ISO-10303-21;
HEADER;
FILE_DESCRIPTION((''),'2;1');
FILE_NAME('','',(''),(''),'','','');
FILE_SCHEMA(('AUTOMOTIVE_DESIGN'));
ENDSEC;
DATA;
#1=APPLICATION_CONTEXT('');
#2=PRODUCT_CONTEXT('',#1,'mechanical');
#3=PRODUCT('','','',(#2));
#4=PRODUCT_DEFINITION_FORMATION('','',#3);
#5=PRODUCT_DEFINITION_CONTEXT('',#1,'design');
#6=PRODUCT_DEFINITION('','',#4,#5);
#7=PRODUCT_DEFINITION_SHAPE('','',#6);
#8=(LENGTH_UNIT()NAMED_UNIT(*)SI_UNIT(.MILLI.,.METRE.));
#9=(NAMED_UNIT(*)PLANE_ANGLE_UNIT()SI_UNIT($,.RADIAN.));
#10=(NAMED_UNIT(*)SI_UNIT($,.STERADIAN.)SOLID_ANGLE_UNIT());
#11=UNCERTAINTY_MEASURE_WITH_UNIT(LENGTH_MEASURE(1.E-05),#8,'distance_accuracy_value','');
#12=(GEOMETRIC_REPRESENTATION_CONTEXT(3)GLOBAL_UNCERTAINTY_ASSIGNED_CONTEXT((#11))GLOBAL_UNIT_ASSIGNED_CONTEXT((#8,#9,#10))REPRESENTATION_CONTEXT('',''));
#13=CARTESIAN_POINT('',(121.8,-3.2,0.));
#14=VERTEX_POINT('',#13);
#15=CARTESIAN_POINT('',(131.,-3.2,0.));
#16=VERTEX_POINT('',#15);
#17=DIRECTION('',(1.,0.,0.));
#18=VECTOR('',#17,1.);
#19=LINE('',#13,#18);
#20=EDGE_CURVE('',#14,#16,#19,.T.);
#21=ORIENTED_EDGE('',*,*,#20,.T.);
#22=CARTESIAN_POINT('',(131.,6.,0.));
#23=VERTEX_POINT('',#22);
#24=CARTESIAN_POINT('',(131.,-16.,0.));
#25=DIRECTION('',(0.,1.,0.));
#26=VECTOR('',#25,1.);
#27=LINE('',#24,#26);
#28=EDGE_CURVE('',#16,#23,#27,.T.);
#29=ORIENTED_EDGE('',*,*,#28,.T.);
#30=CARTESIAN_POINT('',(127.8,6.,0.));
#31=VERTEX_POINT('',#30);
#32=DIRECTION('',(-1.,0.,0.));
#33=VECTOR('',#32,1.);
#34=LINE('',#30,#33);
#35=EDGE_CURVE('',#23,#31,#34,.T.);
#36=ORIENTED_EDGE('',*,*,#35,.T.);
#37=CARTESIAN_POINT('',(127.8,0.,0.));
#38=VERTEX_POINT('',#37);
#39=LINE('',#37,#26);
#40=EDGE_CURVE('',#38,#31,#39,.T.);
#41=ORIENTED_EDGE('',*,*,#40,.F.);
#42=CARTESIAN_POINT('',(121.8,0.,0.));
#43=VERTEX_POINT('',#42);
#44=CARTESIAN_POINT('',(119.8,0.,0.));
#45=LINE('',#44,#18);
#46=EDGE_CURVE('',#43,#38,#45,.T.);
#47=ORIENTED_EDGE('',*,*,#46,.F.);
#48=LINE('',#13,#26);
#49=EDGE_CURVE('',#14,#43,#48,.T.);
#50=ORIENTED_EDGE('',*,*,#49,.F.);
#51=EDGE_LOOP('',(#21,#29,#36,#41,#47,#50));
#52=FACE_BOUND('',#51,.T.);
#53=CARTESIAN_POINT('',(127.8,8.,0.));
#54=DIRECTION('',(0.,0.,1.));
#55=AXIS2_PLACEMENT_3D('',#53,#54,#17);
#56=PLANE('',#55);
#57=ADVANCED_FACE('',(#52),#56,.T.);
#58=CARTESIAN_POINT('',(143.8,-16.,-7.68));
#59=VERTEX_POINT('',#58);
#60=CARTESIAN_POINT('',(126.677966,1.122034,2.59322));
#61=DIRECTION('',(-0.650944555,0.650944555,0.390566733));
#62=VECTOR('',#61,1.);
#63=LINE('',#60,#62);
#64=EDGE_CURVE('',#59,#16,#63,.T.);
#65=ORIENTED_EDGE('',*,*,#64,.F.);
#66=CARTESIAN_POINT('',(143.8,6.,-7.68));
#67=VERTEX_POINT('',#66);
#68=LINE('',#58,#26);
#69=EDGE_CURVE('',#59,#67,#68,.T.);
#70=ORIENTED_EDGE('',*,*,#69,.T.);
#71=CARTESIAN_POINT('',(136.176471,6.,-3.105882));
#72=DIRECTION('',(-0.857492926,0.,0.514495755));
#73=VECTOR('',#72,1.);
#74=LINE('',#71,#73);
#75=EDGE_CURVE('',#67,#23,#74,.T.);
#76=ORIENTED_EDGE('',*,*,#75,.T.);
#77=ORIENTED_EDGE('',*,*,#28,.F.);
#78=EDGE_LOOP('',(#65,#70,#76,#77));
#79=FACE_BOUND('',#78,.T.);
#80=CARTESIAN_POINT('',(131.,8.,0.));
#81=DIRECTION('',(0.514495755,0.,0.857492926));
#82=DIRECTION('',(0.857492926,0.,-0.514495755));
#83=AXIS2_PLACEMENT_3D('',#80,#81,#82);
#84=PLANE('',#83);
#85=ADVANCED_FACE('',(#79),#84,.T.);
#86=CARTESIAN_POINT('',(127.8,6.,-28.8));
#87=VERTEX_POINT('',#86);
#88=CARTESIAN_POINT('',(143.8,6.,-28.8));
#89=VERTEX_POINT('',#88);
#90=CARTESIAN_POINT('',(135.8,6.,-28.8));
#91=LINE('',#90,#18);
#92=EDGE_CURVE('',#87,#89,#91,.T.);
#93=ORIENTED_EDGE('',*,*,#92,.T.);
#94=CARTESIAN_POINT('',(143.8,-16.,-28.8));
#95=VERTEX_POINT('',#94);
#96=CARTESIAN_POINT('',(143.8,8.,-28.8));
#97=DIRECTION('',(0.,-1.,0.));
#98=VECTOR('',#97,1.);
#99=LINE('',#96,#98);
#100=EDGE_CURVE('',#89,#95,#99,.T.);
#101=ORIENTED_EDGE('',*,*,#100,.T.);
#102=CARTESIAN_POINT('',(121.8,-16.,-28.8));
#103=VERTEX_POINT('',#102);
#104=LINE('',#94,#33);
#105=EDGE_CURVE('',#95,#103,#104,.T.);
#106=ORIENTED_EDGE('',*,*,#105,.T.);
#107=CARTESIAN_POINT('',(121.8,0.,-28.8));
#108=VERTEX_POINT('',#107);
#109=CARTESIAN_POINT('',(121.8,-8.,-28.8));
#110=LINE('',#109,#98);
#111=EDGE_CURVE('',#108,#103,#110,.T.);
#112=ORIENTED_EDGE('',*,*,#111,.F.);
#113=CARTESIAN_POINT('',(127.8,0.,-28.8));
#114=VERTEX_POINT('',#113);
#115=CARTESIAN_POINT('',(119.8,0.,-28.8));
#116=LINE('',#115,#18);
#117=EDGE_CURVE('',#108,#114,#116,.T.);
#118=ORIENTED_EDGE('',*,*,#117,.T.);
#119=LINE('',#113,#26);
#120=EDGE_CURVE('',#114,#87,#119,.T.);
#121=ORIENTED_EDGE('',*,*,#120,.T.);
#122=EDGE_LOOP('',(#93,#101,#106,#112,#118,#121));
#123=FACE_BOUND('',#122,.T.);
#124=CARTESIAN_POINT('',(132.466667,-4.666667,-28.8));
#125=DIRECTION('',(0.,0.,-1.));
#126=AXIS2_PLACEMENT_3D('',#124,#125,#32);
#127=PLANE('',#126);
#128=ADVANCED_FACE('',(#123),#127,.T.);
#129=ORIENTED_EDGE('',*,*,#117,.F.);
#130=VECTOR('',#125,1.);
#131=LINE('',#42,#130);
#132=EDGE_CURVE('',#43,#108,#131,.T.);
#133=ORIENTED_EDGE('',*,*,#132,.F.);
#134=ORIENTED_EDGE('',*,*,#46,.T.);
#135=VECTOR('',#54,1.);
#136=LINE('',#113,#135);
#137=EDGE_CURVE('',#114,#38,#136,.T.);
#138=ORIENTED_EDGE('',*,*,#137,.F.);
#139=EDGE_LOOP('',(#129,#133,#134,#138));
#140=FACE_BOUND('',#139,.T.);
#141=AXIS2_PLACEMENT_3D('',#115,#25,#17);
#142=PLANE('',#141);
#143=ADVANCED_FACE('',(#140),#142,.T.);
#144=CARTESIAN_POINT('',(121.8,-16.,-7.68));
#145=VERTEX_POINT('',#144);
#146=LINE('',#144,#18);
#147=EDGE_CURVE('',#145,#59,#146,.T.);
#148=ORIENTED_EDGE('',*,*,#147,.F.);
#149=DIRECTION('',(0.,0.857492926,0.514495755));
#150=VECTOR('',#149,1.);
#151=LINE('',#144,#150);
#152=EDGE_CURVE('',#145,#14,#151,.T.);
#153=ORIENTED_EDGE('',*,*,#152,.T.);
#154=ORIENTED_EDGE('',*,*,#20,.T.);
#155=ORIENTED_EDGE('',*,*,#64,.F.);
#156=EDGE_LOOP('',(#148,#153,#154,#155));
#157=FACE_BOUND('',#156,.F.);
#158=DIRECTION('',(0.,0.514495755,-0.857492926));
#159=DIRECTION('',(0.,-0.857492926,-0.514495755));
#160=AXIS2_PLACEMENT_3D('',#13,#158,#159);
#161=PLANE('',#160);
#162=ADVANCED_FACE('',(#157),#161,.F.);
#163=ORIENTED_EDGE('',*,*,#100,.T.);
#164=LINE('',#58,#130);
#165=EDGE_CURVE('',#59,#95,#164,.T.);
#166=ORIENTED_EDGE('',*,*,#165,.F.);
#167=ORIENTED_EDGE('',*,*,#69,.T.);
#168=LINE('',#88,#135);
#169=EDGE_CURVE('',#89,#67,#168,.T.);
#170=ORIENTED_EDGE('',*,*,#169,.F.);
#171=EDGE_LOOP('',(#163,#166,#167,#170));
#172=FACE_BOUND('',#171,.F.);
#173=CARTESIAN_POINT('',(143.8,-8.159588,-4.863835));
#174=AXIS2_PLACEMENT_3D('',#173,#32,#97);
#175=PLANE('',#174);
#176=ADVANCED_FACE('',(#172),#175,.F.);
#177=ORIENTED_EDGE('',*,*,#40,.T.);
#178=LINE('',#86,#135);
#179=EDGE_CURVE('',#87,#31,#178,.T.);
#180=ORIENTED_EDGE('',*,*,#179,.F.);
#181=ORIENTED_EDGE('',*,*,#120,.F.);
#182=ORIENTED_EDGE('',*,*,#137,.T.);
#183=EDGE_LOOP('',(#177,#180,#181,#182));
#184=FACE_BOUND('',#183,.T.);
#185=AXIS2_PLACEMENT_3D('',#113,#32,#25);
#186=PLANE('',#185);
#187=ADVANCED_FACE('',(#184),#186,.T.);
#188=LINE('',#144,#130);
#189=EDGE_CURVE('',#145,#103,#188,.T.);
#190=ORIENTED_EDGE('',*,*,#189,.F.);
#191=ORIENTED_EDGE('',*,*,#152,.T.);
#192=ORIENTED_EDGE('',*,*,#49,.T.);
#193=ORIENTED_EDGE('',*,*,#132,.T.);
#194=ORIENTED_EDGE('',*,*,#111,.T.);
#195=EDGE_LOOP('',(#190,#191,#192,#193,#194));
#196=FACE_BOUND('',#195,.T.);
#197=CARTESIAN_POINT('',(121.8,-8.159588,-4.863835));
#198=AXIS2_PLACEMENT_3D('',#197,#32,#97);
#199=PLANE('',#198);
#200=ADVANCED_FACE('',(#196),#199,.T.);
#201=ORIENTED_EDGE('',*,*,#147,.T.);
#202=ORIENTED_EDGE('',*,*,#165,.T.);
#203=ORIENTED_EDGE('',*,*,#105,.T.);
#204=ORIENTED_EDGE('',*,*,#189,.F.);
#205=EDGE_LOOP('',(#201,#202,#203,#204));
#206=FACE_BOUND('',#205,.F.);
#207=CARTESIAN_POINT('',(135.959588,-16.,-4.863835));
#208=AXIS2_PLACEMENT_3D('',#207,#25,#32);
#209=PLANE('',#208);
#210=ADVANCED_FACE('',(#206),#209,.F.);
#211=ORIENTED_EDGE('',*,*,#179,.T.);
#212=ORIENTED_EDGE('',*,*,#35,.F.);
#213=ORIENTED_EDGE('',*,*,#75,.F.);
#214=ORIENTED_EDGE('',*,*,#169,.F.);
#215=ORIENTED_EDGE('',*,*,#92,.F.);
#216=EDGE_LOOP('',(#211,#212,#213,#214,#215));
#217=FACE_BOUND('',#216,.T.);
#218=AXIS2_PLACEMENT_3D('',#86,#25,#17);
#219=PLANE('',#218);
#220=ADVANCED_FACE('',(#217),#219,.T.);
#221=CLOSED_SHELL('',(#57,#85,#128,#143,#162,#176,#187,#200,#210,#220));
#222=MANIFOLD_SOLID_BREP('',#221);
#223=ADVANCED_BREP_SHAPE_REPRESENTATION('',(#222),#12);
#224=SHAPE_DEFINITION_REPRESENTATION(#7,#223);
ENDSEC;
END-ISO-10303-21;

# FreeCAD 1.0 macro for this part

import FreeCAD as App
import Part
import Sketcher
from FreeCAD import Vector
Q = App.Units.Quantity


def add_polygon(sketch, points):
    """Adds a closed chain of lines whose ends are joined by coincident constraints."""
    first, n = sketch.GeometryCount, len(points)
    for a, b in zip(points, points[1:] + points[:1]):
        sketch.addGeometry(Part.LineSegment(App.Vector(*a, 0), App.Vector(*b, 0)), False)
    for i in range(n):
        sketch.addConstraint(Sketcher.Constraint("Coincident", first + i, 2, first + (i + 1) % n, 1))

doc = App.newDocument("Part")
body = doc.addObject("PartDesign::Body", "Body")

# Sketch on XY plane
sketch1 = body.newObject("Sketcher::SketchObject", "Sketch")
sketch1.AttachmentSupport = (doc.getObject("XY_Plane"), [""])
sketch1.MapMode = "FlatFace"
sketch1.AttachmentOffset = App.Placement(Vector(0, 0, -28.8), App.Rotation())
add_polygon(sketch1, [(127.8, 8), (127.8, 0), (119.8, 0), (119.8, -16), (143.8, -16), (143.8, 8)])  # lines 0-5
sketch1.addConstraint([
    Sketcher.Constraint("Vertical", 0),
    Sketcher.Constraint("Horizontal", 1),
    Sketcher.Constraint("Vertical", 2),
    Sketcher.Constraint("Horizontal", 3),
    Sketcher.Constraint("Vertical", 4),
    Sketcher.Constraint("Horizontal", 5),
    Sketcher.Constraint("PointOnObject", 0, 2, -1),
    Sketcher.Constraint("Equal", 1, 0),
    Sketcher.Constraint("Equal", 5, 2),
    Sketcher.Constraint("DistanceX", 1, 2, 1, 1, Q("8 mm")),
    Sketcher.Constraint("DistanceX", 3, 1, 3, 2, Q("24 mm")),
    Sketcher.Constraint("DistanceX", -1, 1, 0, 2, Q("127.8 mm")),
])
pad1 = body.newObject("PartDesign::Pad", "Pad")
pad1.Profile = sketch1
pad1.Length = 28.8

# Sketch on YZ plane
sketch2 = body.newObject("Sketcher::SketchObject", "Sketch001")
sketch2.AttachmentSupport = (doc.getObject("YZ_Plane"), [""])
sketch2.MapMode = "FlatFace"
sketch2.AttachmentOffset = App.Placement(Vector(0, 0, 119.8), App.Rotation())
add_polygon(sketch2, [(0, 0), (-16, -9.6), (-16, 0)])  # lines 0-2
sketch2.addConstraint([
    Sketcher.Constraint("Vertical", 1),
    Sketcher.Constraint("Horizontal", 2),
    Sketcher.Constraint("Coincident", 2, 2, -1, 1),
    Sketcher.Constraint("DistanceX", 2, 1, 2, 2, Q("16 mm")),
    Sketcher.Constraint("DistanceY", 1, 1, 1, 2, Q("9.6 mm")),
])
pocket1 = body.newObject("PartDesign::Pocket", "Pocket")
pocket1.Profile = sketch2
pocket1.Length = 24
pocket1.Reversed = True

# Sketch on XZ plane
sketch3 = body.newObject("Sketcher::SketchObject", "Sketch002")
sketch3.AttachmentSupport = (doc.getObject("XZ_Plane"), [""])
sketch3.MapMode = "FlatFace"
sketch3.AttachmentOffset = App.Placement(Vector(0, 0, -8), App.Rotation())
add_polygon(sketch3, [(143.8, -9.6), (127.8, 0), (143.8, 0)])  # lines 0-2
sketch3.addConstraint([
    Sketcher.Constraint("Horizontal", 1),
    Sketcher.Constraint("Vertical", 2),
    Sketcher.Constraint("PointOnObject", 0, 2, -1),
    Sketcher.Constraint("DistanceX", 1, 1, 1, 2, Q("16 mm")),
    Sketcher.Constraint("DistanceY", 2, 2, 2, 1, Q("9.6 mm")),
    Sketcher.Constraint("DistanceX", -1, 1, 0, 2, Q("127.8 mm")),
])
pocket2 = body.newObject("PartDesign::Pocket", "Pocket001")
pocket2.Profile = sketch3
pocket2.Length = 24
pocket2.Reversed = True

# Sketch on XY plane
sketch4 = body.newObject("Sketcher::SketchObject", "Sketch003")
sketch4.AttachmentSupport = (doc.getObject("XY_Plane"), [""])
sketch4.MapMode = "FlatFace"
sketch4.AttachmentOffset = App.Placement(Vector(0, 0, -28.8), App.Rotation())
add_polygon(sketch4, [(119.8, -16), (119.8, 0), (121.8, 0), (121.8, -16)])  # lines 0-3
sketch4.addConstraint([
    Sketcher.Constraint("Vertical", 0),
    Sketcher.Constraint("Horizontal", 1),
    Sketcher.Constraint("Vertical", 2),
    Sketcher.Constraint("Horizontal", 3),
    Sketcher.Constraint("PointOnObject", 0, 2, -1),
    Sketcher.Constraint("DistanceX", 1, 1, 1, 2, Q("2 mm")),
    Sketcher.Constraint("DistanceY", 0, 1, 0, 2, Q("16 mm")),
    Sketcher.Constraint("DistanceX", -1, 1, 0, 2, Q("119.8 mm")),
])
pocket3 = body.newObject("PartDesign::Pocket", "Pocket002")
pocket3.Profile = sketch4
pocket3.Length = 30
pocket3.Reversed = True

# Sketch on XZ plane
sketch5 = body.newObject("Sketcher::SketchObject", "Sketch004")
sketch5.AttachmentSupport = (doc.getObject("XZ_Plane"), [""])
sketch5.MapMode = "FlatFace"
sketch5.AttachmentOffset = App.Placement(Vector(0, 0, -8), App.Rotation())
add_polygon(sketch5, [(127.8, 0), (131, 0), (143.8, -7.68), (143.8, -10.88), (131, -3.2), (127.8, -3.2)])  # lines 0-5
sketch5.addConstraint([
    Sketcher.Constraint("Horizontal", 0),
    Sketcher.Constraint("Vertical", 2),
    Sketcher.Constraint("Horizontal", 4),
    Sketcher.Constraint("Vertical", 5),
    Sketcher.Constraint("PointOnObject", 0, 2, -1),
    Sketcher.Constraint("Parallel", 1, 3),
    Sketcher.Constraint("Vertical", 0, 2, 3, 2),
    Sketcher.Constraint("Equal", 4, 2),
    Sketcher.Constraint("DistanceX", 0, 1, 0, 2, Q("3.2 mm")),
    Sketcher.Constraint("DistanceX", -1, 1, 0, 2, Q("131 mm")),
    Sketcher.Constraint("DistanceX", 4, 2, 1, 2, Q("16 mm")),
    Sketcher.Constraint("DistanceY", 1, 2, -1, 1, Q("7.68 mm")),
])
pad2 = body.newObject("PartDesign::Pad", "Pad001")
pad2.Profile = sketch5
pad2.Length = 24

# Sketch on YZ plane
sketch6 = body.newObject("Sketcher::SketchObject", "Sketch005")
sketch6.AttachmentSupport = (doc.getObject("YZ_Plane"), [""])
sketch6.MapMode = "FlatFace"
sketch6.AttachmentOffset = App.Placement(Vector(0, 0, 121.8), App.Rotation())
add_polygon(sketch6, [(0, 0), (0, -3.2), (-3.2, -3.2), (-16, -10.88), (-16, -7.68), (-3.2, 0)])  # lines 0-5
sketch6.addConstraint([
    Sketcher.Constraint("Vertical", 0),
    Sketcher.Constraint("Horizontal", 1),
    Sketcher.Constraint("Vertical", 3),
    Sketcher.Constraint("Horizontal", 5),
    Sketcher.Constraint("Coincident", 5, 2, -1, 1),
    Sketcher.Constraint("Parallel", 2, 4),
    Sketcher.Constraint("Vertical", 1, 2, 4, 2),
    Sketcher.Constraint("Equal", 5, 0),
    Sketcher.Constraint("DistanceX", 1, 2, 1, 1, Q("3.2 mm")),
    Sketcher.Constraint("DistanceX", 2, 2, -1, 1, Q("16 mm")),
    Sketcher.Constraint("DistanceY", 2, 2, -1, 1, Q("10.88 mm")),
])
pad3 = body.newObject("PartDesign::Pad", "Pad002")
pad3.Profile = sketch6
pad3.Length = 22

# Sketch on XZ plane
sketch7 = body.newObject("Sketcher::SketchObject", "Sketch006")
sketch7.AttachmentSupport = (doc.getObject("XZ_Plane"), [""])
sketch7.MapMode = "FlatFace"
sketch7.AttachmentOffset = App.Placement(Vector(0, 0, -8), App.Rotation())
add_polygon(sketch7, [(143.8, -7.68), (131, 0), (143.8, 0)])  # lines 0-2
sketch7.addConstraint([
    Sketcher.Constraint("Horizontal", 1),
    Sketcher.Constraint("Vertical", 2),
    Sketcher.Constraint("PointOnObject", 0, 2, -1),
    Sketcher.Constraint("DistanceX", 1, 1, 1, 2, Q("12.8 mm")),
    Sketcher.Constraint("DistanceX", -1, 1, 0, 2, Q("131 mm")),
    Sketcher.Constraint("DistanceY", 2, 2, 2, 1, Q("7.68 mm")),
])
pocket4 = body.newObject("PartDesign::Pocket", "Pocket003")
pocket4.Profile = sketch7
pocket4.Length = 30
pocket4.Reversed = True

# Sketch on YZ plane
sketch8 = body.newObject("Sketcher::SketchObject", "Sketch007")
sketch8.AttachmentSupport = (doc.getObject("YZ_Plane"), [""])
sketch8.MapMode = "FlatFace"
sketch8.AttachmentOffset = App.Placement(Vector(0, 0, 121.8), App.Rotation())
add_polygon(sketch8, [(-3.2, 0), (-16, -7.68), (-16, 0)])  # lines 0-2
sketch8.addConstraint([
    Sketcher.Constraint("Vertical", 1),
    Sketcher.Constraint("Horizontal", 2),
    Sketcher.Constraint("PointOnObject", 1, 2, -1),
    Sketcher.Constraint("DistanceX", 2, 1, 2, 2, Q("12.8 mm")),
    Sketcher.Constraint("DistanceX", 0, 2, -1, 1, Q("16 mm")),
    Sketcher.Constraint("DistanceY", 1, 1, 1, 2, Q("7.68 mm")),
])
pocket5 = body.newObject("PartDesign::Pocket", "Pocket004")
pocket5.Profile = sketch8
pocket5.Length = 26
pocket5.Reversed = True

# Sketch on XY plane
sketch9 = body.newObject("Sketcher::SketchObject", "Sketch008")
sketch9.AttachmentSupport = (doc.getObject("XY_Plane"), [""])
sketch9.MapMode = "FlatFace"
sketch9.AttachmentOffset = App.Placement(Vector(0, 0, -28.8), App.Rotation())
add_polygon(sketch9, [(127.8, 6), (127.8, 8), (143.8, 8), (143.8, 6)])  # lines 0-3
sketch9.addConstraint([
    Sketcher.Constraint("Vertical", 0),
    Sketcher.Constraint("Horizontal", 1),
    Sketcher.Constraint("Vertical", 2),
    Sketcher.Constraint("Horizontal", 3),
    Sketcher.Constraint("DistanceX", 1, 1, 1, 2, Q("16 mm")),
    Sketcher.Constraint("DistanceY", 0, 1, 0, 2, Q("2 mm")),
    Sketcher.Constraint("DistanceY", -1, 1, 0, 2, Q("8 mm")),
    Sketcher.Constraint("DistanceX", -1, 1, 0, 2, Q("127.8 mm")),
])
pocket6 = body.newObject("PartDesign::Pocket", "Pocket005")
pocket6.Profile = sketch9
pocket6.Length = 30
pocket6.Reversed = True

doc.recompute()
